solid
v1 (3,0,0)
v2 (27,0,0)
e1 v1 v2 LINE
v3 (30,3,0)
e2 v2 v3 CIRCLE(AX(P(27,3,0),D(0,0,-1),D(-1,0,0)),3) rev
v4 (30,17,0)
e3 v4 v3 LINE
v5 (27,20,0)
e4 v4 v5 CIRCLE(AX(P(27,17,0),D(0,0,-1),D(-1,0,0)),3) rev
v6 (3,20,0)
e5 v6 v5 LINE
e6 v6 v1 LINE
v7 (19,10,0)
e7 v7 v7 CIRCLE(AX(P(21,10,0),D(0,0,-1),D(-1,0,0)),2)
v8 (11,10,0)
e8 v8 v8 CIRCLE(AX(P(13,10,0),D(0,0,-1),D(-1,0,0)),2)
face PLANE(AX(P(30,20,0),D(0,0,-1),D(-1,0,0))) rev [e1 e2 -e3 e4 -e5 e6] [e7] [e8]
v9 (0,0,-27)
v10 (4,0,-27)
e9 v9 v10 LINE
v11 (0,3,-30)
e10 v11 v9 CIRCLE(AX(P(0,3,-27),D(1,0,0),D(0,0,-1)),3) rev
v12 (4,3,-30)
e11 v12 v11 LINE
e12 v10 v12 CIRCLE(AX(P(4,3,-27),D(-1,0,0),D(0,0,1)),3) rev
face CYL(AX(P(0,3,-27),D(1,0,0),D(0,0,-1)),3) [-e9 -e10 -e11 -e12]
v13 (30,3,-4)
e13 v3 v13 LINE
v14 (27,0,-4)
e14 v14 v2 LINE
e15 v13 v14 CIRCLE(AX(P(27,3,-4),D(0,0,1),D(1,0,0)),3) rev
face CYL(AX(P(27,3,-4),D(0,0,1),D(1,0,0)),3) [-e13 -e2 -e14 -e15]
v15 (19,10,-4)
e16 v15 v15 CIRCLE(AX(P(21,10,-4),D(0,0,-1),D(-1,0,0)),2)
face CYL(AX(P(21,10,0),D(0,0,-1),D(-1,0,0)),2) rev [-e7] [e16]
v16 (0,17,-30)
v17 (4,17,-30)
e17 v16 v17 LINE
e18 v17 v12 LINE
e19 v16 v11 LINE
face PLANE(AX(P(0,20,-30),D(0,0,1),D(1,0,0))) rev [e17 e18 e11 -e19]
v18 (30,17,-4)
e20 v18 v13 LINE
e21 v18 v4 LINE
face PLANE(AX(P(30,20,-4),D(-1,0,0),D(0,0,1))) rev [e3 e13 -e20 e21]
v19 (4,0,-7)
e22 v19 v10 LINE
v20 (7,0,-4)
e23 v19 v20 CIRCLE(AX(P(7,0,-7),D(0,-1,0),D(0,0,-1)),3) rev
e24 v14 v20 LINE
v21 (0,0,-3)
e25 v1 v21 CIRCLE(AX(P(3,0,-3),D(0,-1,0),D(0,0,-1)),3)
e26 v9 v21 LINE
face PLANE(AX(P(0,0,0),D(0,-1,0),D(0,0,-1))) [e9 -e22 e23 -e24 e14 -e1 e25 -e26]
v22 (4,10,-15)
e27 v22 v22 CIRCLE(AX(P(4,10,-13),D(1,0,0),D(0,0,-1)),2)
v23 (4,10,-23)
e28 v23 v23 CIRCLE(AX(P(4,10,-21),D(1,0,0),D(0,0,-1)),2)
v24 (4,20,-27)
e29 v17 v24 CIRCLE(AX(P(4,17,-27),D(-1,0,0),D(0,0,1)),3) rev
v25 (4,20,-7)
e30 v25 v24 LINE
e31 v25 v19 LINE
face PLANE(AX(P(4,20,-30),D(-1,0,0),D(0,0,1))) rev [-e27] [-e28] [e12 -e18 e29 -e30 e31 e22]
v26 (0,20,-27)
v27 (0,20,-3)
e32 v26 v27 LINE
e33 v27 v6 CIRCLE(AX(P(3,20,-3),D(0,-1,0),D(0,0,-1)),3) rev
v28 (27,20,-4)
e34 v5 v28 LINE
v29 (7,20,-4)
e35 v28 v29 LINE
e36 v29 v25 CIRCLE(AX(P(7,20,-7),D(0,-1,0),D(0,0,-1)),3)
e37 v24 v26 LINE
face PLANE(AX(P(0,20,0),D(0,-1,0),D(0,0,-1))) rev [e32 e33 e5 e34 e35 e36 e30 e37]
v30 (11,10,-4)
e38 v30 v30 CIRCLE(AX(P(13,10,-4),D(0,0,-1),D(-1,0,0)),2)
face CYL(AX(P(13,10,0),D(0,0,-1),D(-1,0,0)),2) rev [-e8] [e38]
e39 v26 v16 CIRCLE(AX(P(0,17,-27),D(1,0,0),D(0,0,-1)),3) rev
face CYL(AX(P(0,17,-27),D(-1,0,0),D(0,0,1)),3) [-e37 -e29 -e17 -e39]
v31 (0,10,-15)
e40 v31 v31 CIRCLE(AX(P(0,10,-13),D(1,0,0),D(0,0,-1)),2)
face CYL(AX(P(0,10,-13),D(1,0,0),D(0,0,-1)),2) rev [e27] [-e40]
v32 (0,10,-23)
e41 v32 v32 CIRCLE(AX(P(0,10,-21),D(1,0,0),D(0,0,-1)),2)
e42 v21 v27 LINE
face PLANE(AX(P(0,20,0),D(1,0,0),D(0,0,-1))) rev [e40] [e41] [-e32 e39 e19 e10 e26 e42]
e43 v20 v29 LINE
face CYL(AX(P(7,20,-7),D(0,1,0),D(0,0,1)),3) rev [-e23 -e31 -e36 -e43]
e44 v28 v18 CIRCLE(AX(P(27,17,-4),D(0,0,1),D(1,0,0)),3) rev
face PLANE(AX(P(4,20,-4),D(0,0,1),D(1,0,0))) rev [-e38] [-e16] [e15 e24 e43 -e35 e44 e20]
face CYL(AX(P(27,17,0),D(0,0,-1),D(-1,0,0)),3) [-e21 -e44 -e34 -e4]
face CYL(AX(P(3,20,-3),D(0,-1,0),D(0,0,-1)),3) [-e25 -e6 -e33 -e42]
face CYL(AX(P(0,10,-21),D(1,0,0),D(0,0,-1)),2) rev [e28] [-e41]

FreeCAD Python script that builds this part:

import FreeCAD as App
import Part
import Sketcher


def edges_at(feature, points):
    """Names of the edges that pass closest to the given points."""
    edges = feature.Shape.Edges
    near = lambda p: min(range(len(edges)), key=lambda i: edges[i].distToShape(Part.Vertex(*p))[0])
    return sorted({f"Edge{near(p) + 1}" for p in points})


def add_polygon(sketch, points):
    """Adds a closed chain of lines whose ends are joined by coincident constraints."""
    first, n = sketch.GeometryCount, len(points)
    for a, b in zip(points, points[1:] + points[:1]):
        sketch.addGeometry(Part.LineSegment(App.Vector(*a, 0), App.Vector(*b, 0)), False)
    for i in range(n):
        sketch.addConstraint(Sketcher.Constraint("Coincident", first + i, 2, first + (i + 1) % n, 1))

doc = App.newDocument("Part")
body = doc.addObject("PartDesign::Body", "Body")

# Sketch on XZ plane
sketch1 = body.newObject("Sketcher::SketchObject", "Sketch")
sketch1.AttachmentSupport = (doc.getObject("XZ_Plane"), [""])
sketch1.MapMode = "FlatFace"
add_polygon(sketch1, [(0, -30), (0, 0), (30, 0), (30, -4), (4, -4), (4, -30)])  # lines 0-5
sketch1.addConstraint([
    Sketcher.Constraint("Vertical", 0),
    Sketcher.Constraint("Horizontal", 1),
    Sketcher.Constraint("Vertical", 2),
    Sketcher.Constraint("Horizontal", 3),
    Sketcher.Constraint("Vertical", 4),
    Sketcher.Constraint("Horizontal", 5),
    Sketcher.Constraint("Coincident", 0, 2, -1, 1),
    Sketcher.Constraint("Equal", 1, 0),
    Sketcher.Constraint("Equal", 5, 2),
    Sketcher.Constraint("DistanceX", 1, 1, 1, 2, 30.0),
    Sketcher.Constraint("DistanceX", 3, 2, 3, 1, 26.0),
])
pad1 = body.newObject("PartDesign::Pad", "Pad")
pad1.Profile = sketch1
pad1.Length = 20
pad1.Reversed = True

# Sketch on YZ plane
sketch2 = body.newObject("Sketcher::SketchObject", "Sketch001")
sketch2.AttachmentSupport = (doc.getObject("YZ_Plane"), [""])
sketch2.MapMode = "FlatFace"
sketch2.AttachmentOffset = App.Placement(App.Vector(0, 0, 4), App.Rotation())
sketch2.addGeometry([
    Part.Circle(App.Vector(10, -13, 0), App.Vector(0, 0, 1), 2),
    Part.Circle(App.Vector(10, -21, 0), App.Vector(0, 0, 1), 2),
], False)
sketch2.addConstraint([
    Sketcher.Constraint("Equal", 0, 1),
    Sketcher.Constraint("Vertical", 0, 3, 1, 3),
    Sketcher.Constraint("Diameter", 0, 4.0),
    Sketcher.Constraint("DistanceX", -1, 1, 0, 3, 10.0),
    Sketcher.Constraint("DistanceY", 0, 3, -1, 1, 13.0),
    Sketcher.Constraint("DistanceY", 1, 3, -1, 1, 21.0),
])
pocket1 = body.newObject("PartDesign::Pocket", "Pocket")
pocket1.Profile = sketch2
pocket1.Type = "ThroughAll"

# Sketch on XY plane
sketch3 = body.newObject("Sketcher::SketchObject", "Sketch002")
sketch3.AttachmentSupport = (doc.getObject("XY_Plane"), [""])
sketch3.MapMode = "FlatFace"
sketch3.AttachmentOffset = App.Placement(App.Vector(0, 0, -4), App.Rotation())
sketch3.addGeometry([
    Part.Circle(App.Vector(21, 10, 0), App.Vector(0, 0, 1), 2),
    Part.Circle(App.Vector(13, 10, 0), App.Vector(0, 0, 1), 2),
], False)
sketch3.addConstraint([
    Sketcher.Constraint("Equal", 0, 1),
    Sketcher.Constraint("Horizontal", 0, 3, 1, 3),
    Sketcher.Constraint("Diameter", 0, 4.0),
    Sketcher.Constraint("DistanceX", -1, 1, 0, 3, 21.0),
    Sketcher.Constraint("DistanceY", -1, 1, 0, 3, 10.0),
    Sketcher.Constraint("DistanceX", -1, 1, 1, 3, 13.0),
])
pocket2 = body.newObject("PartDesign::Pocket", "Pocket001")
pocket2.Profile = sketch3
pocket2.Type = "ThroughAll"
pocket2.Reversed = True
doc.recompute()

fillet = body.newObject("PartDesign::Fillet", "Fillet")
fillet.Base = (pocket2, edges_at(pocket2, [
    (0, 10, 0),
    (4, 10, -4),
    (2, 20, -30),
    (2, 0, -30),
    (30, 20, -2),
    (30, 0, -2),
]))
fillet.Radius = 3

doc.recompute()
